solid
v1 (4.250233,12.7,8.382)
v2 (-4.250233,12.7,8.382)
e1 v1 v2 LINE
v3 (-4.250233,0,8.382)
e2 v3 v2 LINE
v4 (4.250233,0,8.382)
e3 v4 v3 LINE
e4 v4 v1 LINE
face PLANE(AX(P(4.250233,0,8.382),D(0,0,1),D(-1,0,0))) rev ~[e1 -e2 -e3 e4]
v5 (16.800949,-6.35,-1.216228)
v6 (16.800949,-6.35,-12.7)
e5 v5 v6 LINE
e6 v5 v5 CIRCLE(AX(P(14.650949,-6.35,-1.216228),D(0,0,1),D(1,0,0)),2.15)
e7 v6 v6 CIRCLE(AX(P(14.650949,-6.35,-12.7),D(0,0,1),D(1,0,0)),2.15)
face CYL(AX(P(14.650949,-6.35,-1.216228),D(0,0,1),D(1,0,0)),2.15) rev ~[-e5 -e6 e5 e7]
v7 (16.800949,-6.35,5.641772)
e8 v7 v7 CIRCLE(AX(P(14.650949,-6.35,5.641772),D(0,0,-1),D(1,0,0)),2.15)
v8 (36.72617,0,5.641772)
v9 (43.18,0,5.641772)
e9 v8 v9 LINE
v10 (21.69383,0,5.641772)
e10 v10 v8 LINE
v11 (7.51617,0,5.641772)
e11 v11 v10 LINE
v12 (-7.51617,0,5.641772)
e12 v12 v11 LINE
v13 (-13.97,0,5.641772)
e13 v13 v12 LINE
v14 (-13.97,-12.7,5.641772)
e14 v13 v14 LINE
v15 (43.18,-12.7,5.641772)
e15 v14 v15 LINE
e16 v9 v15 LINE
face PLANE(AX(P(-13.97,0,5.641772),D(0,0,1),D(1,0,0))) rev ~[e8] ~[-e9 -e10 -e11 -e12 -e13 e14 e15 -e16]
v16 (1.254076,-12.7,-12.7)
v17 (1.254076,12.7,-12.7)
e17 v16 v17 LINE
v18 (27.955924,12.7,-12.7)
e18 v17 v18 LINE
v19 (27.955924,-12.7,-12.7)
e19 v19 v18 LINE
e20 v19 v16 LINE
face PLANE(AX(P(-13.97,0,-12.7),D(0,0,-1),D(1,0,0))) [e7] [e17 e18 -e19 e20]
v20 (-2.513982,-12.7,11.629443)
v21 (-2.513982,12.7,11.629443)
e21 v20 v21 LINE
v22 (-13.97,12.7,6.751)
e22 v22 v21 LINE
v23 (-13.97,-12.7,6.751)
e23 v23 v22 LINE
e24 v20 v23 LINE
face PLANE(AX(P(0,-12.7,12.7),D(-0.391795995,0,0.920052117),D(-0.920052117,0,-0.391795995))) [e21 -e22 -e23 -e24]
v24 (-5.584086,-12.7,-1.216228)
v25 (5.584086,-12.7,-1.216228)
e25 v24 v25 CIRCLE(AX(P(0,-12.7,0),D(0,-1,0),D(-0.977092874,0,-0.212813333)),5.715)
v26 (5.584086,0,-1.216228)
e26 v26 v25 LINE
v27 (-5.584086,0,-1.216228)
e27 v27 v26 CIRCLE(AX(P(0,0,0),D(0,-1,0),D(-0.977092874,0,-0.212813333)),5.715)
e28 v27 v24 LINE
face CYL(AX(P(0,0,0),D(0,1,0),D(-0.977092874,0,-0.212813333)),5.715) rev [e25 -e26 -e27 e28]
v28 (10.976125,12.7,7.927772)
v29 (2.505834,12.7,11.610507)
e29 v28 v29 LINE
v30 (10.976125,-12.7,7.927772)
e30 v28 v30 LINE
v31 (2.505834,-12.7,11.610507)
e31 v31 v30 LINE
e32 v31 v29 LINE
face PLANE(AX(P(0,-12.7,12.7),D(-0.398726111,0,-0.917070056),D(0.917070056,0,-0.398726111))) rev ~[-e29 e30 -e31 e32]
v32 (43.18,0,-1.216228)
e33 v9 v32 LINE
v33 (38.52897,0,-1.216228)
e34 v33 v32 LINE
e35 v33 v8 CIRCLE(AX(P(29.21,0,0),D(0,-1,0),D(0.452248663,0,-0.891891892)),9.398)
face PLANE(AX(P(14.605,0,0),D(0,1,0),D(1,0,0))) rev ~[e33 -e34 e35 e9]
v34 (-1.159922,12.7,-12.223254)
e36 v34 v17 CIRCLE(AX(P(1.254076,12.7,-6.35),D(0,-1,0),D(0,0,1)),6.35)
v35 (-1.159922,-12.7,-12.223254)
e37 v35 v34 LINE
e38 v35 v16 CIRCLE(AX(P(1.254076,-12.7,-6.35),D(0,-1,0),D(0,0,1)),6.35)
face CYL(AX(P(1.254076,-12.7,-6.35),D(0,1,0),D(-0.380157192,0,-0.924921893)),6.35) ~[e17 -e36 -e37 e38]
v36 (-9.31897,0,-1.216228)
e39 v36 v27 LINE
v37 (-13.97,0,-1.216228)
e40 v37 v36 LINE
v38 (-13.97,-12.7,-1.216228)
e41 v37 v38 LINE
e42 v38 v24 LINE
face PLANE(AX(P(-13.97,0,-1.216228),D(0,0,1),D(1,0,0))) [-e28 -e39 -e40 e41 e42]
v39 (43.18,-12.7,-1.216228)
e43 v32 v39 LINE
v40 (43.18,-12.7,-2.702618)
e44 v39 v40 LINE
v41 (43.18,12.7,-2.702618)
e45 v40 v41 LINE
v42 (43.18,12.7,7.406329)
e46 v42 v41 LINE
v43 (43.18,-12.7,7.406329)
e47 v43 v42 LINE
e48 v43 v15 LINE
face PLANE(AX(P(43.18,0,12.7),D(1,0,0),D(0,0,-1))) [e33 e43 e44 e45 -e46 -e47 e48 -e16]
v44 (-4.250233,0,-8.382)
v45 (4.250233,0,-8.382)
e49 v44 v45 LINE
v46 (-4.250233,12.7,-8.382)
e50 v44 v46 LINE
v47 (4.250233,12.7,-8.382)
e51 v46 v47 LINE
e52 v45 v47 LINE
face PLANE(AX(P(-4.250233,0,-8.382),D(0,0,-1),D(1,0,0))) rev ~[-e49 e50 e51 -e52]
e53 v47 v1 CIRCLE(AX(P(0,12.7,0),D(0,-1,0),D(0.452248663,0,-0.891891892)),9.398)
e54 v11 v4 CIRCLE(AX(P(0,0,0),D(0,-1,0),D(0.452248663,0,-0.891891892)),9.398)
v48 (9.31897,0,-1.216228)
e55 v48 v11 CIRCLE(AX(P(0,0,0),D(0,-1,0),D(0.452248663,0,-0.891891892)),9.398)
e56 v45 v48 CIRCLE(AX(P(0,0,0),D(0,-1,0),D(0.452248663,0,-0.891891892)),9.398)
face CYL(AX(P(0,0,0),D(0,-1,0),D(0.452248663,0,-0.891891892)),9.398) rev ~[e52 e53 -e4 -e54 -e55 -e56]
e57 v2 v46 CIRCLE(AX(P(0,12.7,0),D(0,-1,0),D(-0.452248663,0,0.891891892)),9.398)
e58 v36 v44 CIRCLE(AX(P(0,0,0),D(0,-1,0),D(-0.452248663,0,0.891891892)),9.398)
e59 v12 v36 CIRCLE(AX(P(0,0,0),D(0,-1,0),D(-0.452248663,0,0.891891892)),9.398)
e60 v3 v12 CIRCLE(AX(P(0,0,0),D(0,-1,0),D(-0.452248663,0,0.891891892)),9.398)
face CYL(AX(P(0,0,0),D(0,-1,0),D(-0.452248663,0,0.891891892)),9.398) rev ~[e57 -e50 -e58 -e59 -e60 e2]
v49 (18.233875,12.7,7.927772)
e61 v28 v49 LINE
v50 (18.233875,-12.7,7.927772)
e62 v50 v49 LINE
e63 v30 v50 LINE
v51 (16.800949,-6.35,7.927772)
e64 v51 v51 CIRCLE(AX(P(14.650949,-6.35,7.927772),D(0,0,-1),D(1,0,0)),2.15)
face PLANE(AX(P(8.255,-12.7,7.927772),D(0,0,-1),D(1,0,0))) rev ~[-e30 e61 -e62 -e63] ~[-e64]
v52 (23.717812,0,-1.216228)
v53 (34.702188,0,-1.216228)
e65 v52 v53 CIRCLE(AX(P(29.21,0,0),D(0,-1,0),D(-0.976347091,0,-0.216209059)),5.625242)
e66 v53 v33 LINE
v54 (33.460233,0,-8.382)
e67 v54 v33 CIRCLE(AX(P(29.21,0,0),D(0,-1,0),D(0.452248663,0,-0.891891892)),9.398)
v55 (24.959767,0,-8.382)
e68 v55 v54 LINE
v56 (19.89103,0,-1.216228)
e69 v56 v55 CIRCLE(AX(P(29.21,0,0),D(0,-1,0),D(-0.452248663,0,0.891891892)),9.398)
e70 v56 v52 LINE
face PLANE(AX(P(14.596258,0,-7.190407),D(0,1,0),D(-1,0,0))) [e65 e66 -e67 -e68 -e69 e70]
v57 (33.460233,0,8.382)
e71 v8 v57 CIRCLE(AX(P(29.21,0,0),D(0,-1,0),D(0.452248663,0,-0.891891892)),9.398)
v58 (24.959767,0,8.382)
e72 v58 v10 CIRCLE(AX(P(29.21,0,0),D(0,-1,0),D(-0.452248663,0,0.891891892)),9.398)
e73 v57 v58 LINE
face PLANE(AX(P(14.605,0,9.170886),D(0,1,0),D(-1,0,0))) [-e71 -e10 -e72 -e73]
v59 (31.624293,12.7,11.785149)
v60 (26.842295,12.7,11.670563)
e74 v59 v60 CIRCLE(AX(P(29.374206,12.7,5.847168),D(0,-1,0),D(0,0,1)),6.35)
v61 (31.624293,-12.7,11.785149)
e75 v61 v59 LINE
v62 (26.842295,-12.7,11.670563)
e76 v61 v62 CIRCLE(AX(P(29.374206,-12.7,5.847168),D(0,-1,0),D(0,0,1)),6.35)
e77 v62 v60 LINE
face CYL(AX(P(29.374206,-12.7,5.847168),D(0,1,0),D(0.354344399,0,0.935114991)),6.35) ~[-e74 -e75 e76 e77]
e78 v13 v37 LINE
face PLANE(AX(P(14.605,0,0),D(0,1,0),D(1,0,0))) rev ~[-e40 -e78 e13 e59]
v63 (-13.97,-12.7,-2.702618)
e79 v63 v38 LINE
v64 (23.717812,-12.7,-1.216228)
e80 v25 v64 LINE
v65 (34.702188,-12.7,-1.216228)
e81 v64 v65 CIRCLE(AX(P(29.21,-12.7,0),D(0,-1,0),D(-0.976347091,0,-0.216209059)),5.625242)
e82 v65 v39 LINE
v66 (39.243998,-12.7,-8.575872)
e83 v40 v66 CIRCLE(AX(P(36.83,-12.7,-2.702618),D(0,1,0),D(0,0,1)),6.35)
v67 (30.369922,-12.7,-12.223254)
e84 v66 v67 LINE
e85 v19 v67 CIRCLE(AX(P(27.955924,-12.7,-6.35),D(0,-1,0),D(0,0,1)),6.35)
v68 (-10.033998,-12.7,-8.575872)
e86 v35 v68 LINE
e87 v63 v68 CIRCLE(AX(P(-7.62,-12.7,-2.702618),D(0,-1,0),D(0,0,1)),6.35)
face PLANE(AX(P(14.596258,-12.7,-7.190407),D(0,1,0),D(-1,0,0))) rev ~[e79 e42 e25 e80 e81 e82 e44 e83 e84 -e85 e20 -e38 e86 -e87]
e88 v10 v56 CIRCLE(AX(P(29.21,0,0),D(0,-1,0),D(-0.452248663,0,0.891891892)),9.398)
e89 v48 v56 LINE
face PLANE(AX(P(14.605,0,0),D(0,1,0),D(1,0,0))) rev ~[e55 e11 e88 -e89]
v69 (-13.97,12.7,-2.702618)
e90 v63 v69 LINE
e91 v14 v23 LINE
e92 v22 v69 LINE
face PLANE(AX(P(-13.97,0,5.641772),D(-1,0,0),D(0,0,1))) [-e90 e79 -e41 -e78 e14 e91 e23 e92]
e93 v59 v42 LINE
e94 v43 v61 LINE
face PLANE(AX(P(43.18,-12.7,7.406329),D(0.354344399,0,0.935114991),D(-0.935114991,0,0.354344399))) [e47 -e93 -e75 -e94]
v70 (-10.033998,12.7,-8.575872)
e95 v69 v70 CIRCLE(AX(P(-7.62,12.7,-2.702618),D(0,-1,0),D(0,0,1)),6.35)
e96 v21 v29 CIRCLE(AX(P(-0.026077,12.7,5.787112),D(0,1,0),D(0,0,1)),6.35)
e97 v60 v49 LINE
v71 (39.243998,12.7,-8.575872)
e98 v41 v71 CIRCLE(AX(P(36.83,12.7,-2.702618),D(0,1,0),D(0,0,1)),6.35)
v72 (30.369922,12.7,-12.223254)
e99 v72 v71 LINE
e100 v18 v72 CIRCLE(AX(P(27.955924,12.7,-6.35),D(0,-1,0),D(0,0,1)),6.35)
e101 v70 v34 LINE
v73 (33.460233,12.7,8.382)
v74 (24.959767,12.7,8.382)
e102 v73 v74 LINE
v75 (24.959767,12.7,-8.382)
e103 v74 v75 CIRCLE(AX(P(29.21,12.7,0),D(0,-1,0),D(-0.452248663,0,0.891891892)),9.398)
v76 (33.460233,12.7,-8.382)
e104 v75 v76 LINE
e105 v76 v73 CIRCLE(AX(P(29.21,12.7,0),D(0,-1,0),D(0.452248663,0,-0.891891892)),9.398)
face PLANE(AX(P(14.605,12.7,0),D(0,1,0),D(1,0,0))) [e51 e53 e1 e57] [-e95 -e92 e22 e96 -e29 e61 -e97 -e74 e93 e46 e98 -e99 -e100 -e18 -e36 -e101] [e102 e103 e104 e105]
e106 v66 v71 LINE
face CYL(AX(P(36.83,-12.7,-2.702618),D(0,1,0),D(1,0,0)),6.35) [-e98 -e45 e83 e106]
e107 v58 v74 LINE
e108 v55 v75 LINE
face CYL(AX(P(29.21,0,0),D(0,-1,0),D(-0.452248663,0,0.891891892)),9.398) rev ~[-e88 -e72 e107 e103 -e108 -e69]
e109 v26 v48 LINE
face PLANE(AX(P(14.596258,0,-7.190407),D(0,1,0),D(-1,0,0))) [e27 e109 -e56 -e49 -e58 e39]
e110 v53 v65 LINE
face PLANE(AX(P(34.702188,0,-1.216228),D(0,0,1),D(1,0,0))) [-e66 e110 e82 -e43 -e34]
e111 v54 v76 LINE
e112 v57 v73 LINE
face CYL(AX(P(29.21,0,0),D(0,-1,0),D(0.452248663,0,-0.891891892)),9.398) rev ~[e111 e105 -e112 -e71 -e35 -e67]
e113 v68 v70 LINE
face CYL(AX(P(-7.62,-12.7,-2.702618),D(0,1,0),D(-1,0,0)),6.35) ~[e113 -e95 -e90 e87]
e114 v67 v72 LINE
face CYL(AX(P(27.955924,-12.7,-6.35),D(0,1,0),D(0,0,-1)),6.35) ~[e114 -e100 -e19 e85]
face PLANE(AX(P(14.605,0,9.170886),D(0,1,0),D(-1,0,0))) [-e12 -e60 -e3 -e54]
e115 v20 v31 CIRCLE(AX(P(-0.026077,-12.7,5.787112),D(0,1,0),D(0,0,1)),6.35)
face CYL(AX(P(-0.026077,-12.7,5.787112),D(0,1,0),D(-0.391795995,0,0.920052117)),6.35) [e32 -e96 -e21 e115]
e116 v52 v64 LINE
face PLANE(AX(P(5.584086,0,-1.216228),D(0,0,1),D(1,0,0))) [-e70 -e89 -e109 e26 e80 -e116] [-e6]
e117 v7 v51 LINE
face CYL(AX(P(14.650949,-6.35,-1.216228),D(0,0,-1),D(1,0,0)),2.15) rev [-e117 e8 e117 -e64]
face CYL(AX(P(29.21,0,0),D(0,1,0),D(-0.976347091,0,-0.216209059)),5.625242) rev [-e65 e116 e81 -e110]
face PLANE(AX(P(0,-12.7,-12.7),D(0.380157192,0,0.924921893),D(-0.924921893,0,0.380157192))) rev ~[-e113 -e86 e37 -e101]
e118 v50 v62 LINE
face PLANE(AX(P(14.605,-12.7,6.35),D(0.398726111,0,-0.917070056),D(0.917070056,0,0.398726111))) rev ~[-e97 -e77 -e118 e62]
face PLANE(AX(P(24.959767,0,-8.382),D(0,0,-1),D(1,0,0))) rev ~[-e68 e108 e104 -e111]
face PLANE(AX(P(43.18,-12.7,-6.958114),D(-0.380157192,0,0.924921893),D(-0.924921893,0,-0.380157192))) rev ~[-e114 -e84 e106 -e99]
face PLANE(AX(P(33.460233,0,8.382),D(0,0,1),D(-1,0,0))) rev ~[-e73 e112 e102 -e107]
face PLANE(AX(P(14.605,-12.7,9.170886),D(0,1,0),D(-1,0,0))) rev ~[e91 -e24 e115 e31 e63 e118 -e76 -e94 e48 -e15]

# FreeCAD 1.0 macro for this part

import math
import FreeCAD as App
import Part
import Sketcher

V = App.Vector
Q = App.Units.Quantity


def edges_at(feature, points):
    """Names of the edges that pass closest to the given points."""
    edges = feature.Shape.Edges
    near = lambda p: min(range(len(edges)), key=lambda i: edges[i].distToShape(Part.Vertex(*p))[0])
    return sorted({f"Edge{near(p) + 1}" for p in points})

doc = App.newDocument("Part")
body = doc.addObject("PartDesign::Body", "Body")

# Sketch on XZ plane
sketch1 = body.newObject("Sketcher::SketchObject", "Sketch")
sketch1.AttachmentSupport = (doc.getObject("XZ_Plane"), [""])
sketch1.MapMode = "FlatFace"
sketch1.addGeometry([
    Part.LineSegment(V(-14, -13, 0), V(-14, 13, 0)),  # 0
    Part.LineSegment(V(-14, 13, 0), V(43, 13, 0)),  # 1
    Part.LineSegment(V(43, 13, 0), V(43, -13, 0)),  # 2
    Part.LineSegment(V(43, -13, 0), V(-14, -13, 0)),  # 3
    Part.ArcOfCircle(Part.Circle(V(0, 0, 0), V(0, 0, 1), 9), math.radians(117), math.radians(243)),  # 4
    Part.LineSegment(V(-4, -8, 0), V(4, -8, 0)),  # 5
    Part.ArcOfCircle(Part.Circle(V(0, 0, 0), V(0, 0, 1), 9), math.radians(-63), math.radians(63)),  # 6
    Part.LineSegment(V(4, 8, 0), V(-4, 8, 0)),  # 7
    Part.ArcOfCircle(Part.Circle(V(29, 0, 0), V(0, 0, 1), 9), math.radians(117), math.radians(243)),  # 8
    Part.LineSegment(V(25, -8, 0), V(33, -8, 0)),  # 9
    Part.ArcOfCircle(Part.Circle(V(29, 0, 0), V(0, 0, 1), 9), math.radians(-63), math.radians(63)),  # 10
    Part.LineSegment(V(33, 8, 0), V(25, 8, 0)),  # 11
], False)
sketch1.addConstraint([
    Sketcher.Constraint("Coincident", 0, 2, 1, 1),
    Sketcher.Constraint("Coincident", 1, 2, 2, 1),
    Sketcher.Constraint("Coincident", 2, 2, 3, 1),
    Sketcher.Constraint("Coincident", 3, 2, 0, 1),
    Sketcher.Constraint("Coincident", 4, 2, 5, 1),
    Sketcher.Constraint("Coincident", 5, 2, 6, 1),
    Sketcher.Constraint("Coincident", 6, 2, 7, 1),
    Sketcher.Constraint("Coincident", 7, 2, 4, 1),
    Sketcher.Constraint("Coincident", 8, 2, 9, 1),
    Sketcher.Constraint("Coincident", 9, 2, 10, 1),
    Sketcher.Constraint("Coincident", 10, 2, 11, 1),
    Sketcher.Constraint("Coincident", 11, 2, 8, 1),
    Sketcher.Constraint("Vertical", 0),
    Sketcher.Constraint("Horizontal", 1),
    Sketcher.Constraint("Vertical", 2),
    Sketcher.Constraint("Horizontal", 3),
    Sketcher.Constraint("Horizontal", 5),
    Sketcher.Constraint("Horizontal", 7),
    Sketcher.Constraint("Horizontal", 9),
    Sketcher.Constraint("Horizontal", 11),
    Sketcher.Constraint("Coincident", 4, 3, -1, 1),
    Sketcher.Constraint("Coincident", 6, 3, -1, 1),
    Sketcher.Constraint("Coincident", 10, 3, 8, 3),
    Sketcher.Constraint("Equal", 4, 6),
    Sketcher.Constraint("Equal", 6, 8),
    Sketcher.Constraint("Equal", 8, 10),
    Sketcher.Constraint("Symmetric", 9, 2, 10, 2, -1),
    Sketcher.Constraint("Horizontal", 5, 2, 8, 2),
    Sketcher.Constraint("Horizontal", 7, 2, 10, 2),
    Sketcher.Constraint("DistanceY", 0, 1, 0, 2, Q("1 in")),
    Sketcher.Constraint("Radius", 4, Q("0.37 in")),
    Sketcher.Constraint("DistanceX", 1, 1, 1, 2, Q("2.25 in")),
    Sketcher.Constraint("DistanceY", -1, 1, 0, 2, Q("0.5 in")),
    Sketcher.Constraint("DistanceX", -1, 1, 1, 2, Q("1.7 in")),
    Sketcher.Constraint("DistanceX", 0, 2, 8, 3, Q("1.7 in")),
    Sketcher.Constraint("DistanceY", 4, 2, -1, 1, Q("0.33 in")),
])
pad1 = body.newObject("PartDesign::Pad", "Pad")
pad1.Profile = sketch1
pad1.Length = Q("0.5 in")
pad1.Reversed = True

# Sketch on XZ plane
sketch2 = body.newObject("Sketcher::SketchObject", "Sketch001")
sketch2.AttachmentSupport = (doc.getObject("XZ_Plane"), [""])
sketch2.MapMode = "FlatFace"
sketch2.addGeometry([
    Part.LineSegment(V(43, 13, 0), V(-14, 13, 0)),  # 0
    Part.LineSegment(V(-14, 13, 0), V(-14, 6, 0)),  # 1
    Part.LineSegment(V(-14, 6, 0), V(43, 6, 0)),  # 2
    Part.LineSegment(V(43, 6, 0), V(43, 13, 0)),  # 3
    Part.LineSegment(V(43, -13, 0), V(43, -1, 0)),  # 4
    Part.LineSegment(V(43, -1, 0), V(35, -1, 0)),  # 5
    Part.ArcOfCircle(Part.Circle(V(29, 0, 0), V(0, 0, 1), 6), math.radians(-168), math.radians(-12)),  # 6
    Part.LineSegment(V(24, -1, 0), V(6, -1, 0)),  # 7
    Part.ArcOfCircle(Part.Circle(V(0, 0, 0), V(0, 0, 1), 6), math.radians(-168), math.radians(-12)),  # 8
    Part.LineSegment(V(-6, -1, 0), V(-14, -1, 0)),  # 9
    Part.LineSegment(V(-14, -1, 0), V(-14, -13, 0)),  # 10
    Part.LineSegment(V(-14, -13, 0), V(43, -13, 0)),  # 11
], False)
sketch2.addConstraint([
    Sketcher.Constraint("Coincident", 0, 2, 1, 1),
    Sketcher.Constraint("Coincident", 1, 2, 2, 1),
    Sketcher.Constraint("Coincident", 2, 2, 3, 1),
    Sketcher.Constraint("Coincident", 3, 2, 0, 1),
    Sketcher.Constraint("Coincident", 4, 2, 5, 1),
    Sketcher.Constraint("Coincident", 5, 2, 6, 2),
    Sketcher.Constraint("Coincident", 6, 1, 7, 1),
    Sketcher.Constraint("Coincident", 7, 2, 8, 2),
    Sketcher.Constraint("Coincident", 8, 1, 9, 1),
    Sketcher.Constraint("Coincident", 9, 2, 10, 1),
    Sketcher.Constraint("Coincident", 10, 2, 11, 1),
    Sketcher.Constraint("Coincident", 11, 2, 4, 1),
    Sketcher.Constraint("Horizontal", 0),
    Sketcher.Constraint("Vertical", 1),
    Sketcher.Constraint("Horizontal", 2),
    Sketcher.Constraint("Vertical", 3),
    Sketcher.Constraint("Vertical", 4),
    Sketcher.Constraint("Horizontal", 5),
    Sketcher.Constraint("Horizontal", 7),
    Sketcher.Constraint("Horizontal", 9),
    Sketcher.Constraint("Vertical", 10),
    Sketcher.Constraint("Horizontal", 11),
    Sketcher.Constraint("Coincident", 8, 3, -1, 1),
    Sketcher.Constraint("Symmetric", 0, 2, 10, 2, -1),
    Sketcher.Constraint("PointOnObject", 6, 3, -1),
    Sketcher.Constraint("Horizontal", 5, 2, 6, 1),
    Sketcher.Constraint("Horizontal", 7, 2, 8, 1),
    Sketcher.Constraint("Vertical", 3, 2, 4, 2),
    Sketcher.Constraint("Radius", 8, Q("0.225 in")),
    Sketcher.Constraint("DistanceX", 0, 2, 0, 1, Q("2.25 in")),
    Sketcher.Constraint("DistanceY", -1, 1, 0, 2, Q("0.5 in")),
    Sketcher.Constraint("DistanceX", -1, 1, 2, 2, Q("1.7 in")),
    Sketcher.Constraint("DistanceX", 0, 2, 6, 3, Q("1.7 in")),
    Sketcher.Constraint("DistanceY", 4, 2, 2, 2, Q("0.27 in")),
    Sketcher.Constraint("Radius", 6, Q("5.625242 mm")),
    Sketcher.Constraint("DistanceX", 5, 2, 5, 1, Q("8.477812 mm")),
])
pad2 = body.newObject("PartDesign::Pad", "Pad001")
pad2.Profile = sketch2
pad2.Length = Q("0.5 in")

# Sketch on XZ plane
sketch3 = body.newObject("Sketcher::SketchObject", "Sketch002")
sketch3.AttachmentSupport = (doc.getObject("XZ_Plane"), [""])
sketch3.MapMode = "FlatFace"
sketch3.AttachmentOffset = App.Placement(V(0, 0, 0.5 * 25.4), App.Rotation())
sketch3.addGeometry([
    Part.LineSegment(V(-14, -7, 0), V(-14, -13, 0)),  # 0
    Part.LineSegment(V(-14, -13, 0), V(0, -13, 0)),  # 1
    Part.LineSegment(V(0, -13, 0), V(-14, -7, 0)),  # 2
    Part.LineSegment(V(29, -13, 0), V(43, -13, 0)),  # 3
    Part.LineSegment(V(43, -13, 0), V(43, -7, 0)),  # 4
    Part.LineSegment(V(43, -7, 0), V(29, -13, 0)),  # 5
    Part.LineSegment(V(43, 7, 0), V(43, 13, 0)),  # 6
    Part.LineSegment(V(43, 13, 0), V(29, 13, 0)),  # 7
    Part.LineSegment(V(29, 13, 0), V(43, 7, 0)),  # 8
    Part.LineSegment(V(-14, 7, 0), V(0, 13, 0)),  # 9
    Part.LineSegment(V(0, 13, 0), V(-14, 13, 0)),  # 10
    Part.LineSegment(V(-14, 13, 0), V(-14, 7, 0)),  # 11
], False)
sketch3.addConstraint([
    Sketcher.Constraint("Coincident", 0, 2, 1, 1),
    Sketcher.Constraint("Coincident", 1, 2, 2, 1),
    Sketcher.Constraint("Coincident", 2, 2, 0, 1),
    Sketcher.Constraint("Coincident", 3, 2, 4, 1),
    Sketcher.Constraint("Coincident", 4, 2, 5, 1),
    Sketcher.Constraint("Coincident", 5, 2, 3, 1),
    Sketcher.Constraint("Coincident", 6, 2, 7, 1),
    Sketcher.Constraint("Coincident", 7, 2, 8, 1),
    Sketcher.Constraint("Coincident", 8, 2, 6, 1),
    Sketcher.Constraint("Coincident", 9, 2, 10, 1),
    Sketcher.Constraint("Coincident", 10, 2, 11, 1),
    Sketcher.Constraint("Coincident", 11, 2, 9, 1),
    Sketcher.Constraint("Vertical", 0),
    Sketcher.Constraint("Horizontal", 1),
    Sketcher.Constraint("Horizontal", 3),
    Sketcher.Constraint("Vertical", 4),
    Sketcher.Constraint("Vertical", 6),
    Sketcher.Constraint("Horizontal", 7),
    Sketcher.Constraint("Horizontal", 10),
    Sketcher.Constraint("Vertical", 11),
    Sketcher.Constraint("Symmetric", 1, 2, 9, 2, -1, 1),
    Sketcher.Constraint("Symmetric", 3, 2, 6, 2, -1),
    Sketcher.Constraint("PointOnObject", 1, 2, -2),
    Sketcher.Constraint("Horizontal", 1, 2, 3, 2),
    Sketcher.Constraint("Horizontal", 2, 2, 4, 2),
    Sketcher.Constraint("Vertical", 5, 2, 7, 2),
    Sketcher.Constraint("Vertical", 2, 2, 10, 2),
    Sketcher.Constraint("Equal", 1, 3),
    Sketcher.Constraint("DistanceY", 3, 2, 6, 2, Q("1 in")),
    Sketcher.Constraint("DistanceX", 1, 1, 1, 2, Q("0.55 in")),
    Sketcher.Constraint("DistanceX", -1, 1, 3, 2, Q("1.7 in")),
    Sketcher.Constraint("DistanceY", 11, 2, 11, 1, Q("5.949 mm")),
    Sketcher.Constraint("DistanceY", 6, 1, 6, 2, Q("5.293671 mm")),
    Sketcher.Constraint("Distance", 2, Q("15.103978 mm")),
])
pocket1 = body.newObject("PartDesign::Pocket", "Pocket")
pocket1.Profile = sketch3
pocket1.Type = "ThroughAll"

# Sketch on XZ plane
sketch4 = body.newObject("Sketcher::SketchObject", "Sketch003")
sketch4.AttachmentSupport = (doc.getObject("XZ_Plane"), [""])
sketch4.MapMode = "FlatFace"
sketch4.AttachmentOffset = App.Placement(V(0, 0, 0.5 * 25.4), App.Rotation())
sketch4.addGeometry([
    Part.LineSegment(V(0, 13, 0), V(15, 6, 0)),
    Part.LineSegment(V(15, 6, 0), V(29, 13, 0)),
    Part.LineSegment(V(29, 13, 0), V(0, 13, 0)),
], False)
sketch4.addConstraint([
    Sketcher.Constraint("Coincident", 0, 2, 1, 1),
    Sketcher.Constraint("Coincident", 1, 2, 2, 1),
    Sketcher.Constraint("Coincident", 2, 2, 0, 1),
    Sketcher.Constraint("Horizontal", 2),
    Sketcher.Constraint("PointOnObject", 2, 2, -2),
    Sketcher.Constraint("Equal", 0, 1),
    Sketcher.Constraint("DistanceX", 2, 2, 2, 1, Q("1.15 in")),
    Sketcher.Constraint("DistanceY", -1, 1, 1, 2, Q("0.5 in")),
    Sketcher.Constraint("DistanceY", -1, 1, 0, 2, Q("0.25 in")),
])
pocket2 = body.newObject("PartDesign::Pocket", "Pocket001")
pocket2.Profile = sketch4
pocket2.Type = "ThroughAll"
doc.recompute()

fillet = body.newObject("PartDesign::Fillet", "Fillet")
fillet.Base = (pocket2, edges_at(pocket2, [
    (0, 0, 12.7),
    (29.21, 0, 12.7),
    (29.21, 0, -12.7),
    (43.18, 0, -6.958),
    (-13.97, 0, -6.958),
    (0, 0, -12.7),
]))
fillet.Radius = Q("0.25 in")

# Sketch on XZ plane
sketch5 = body.newObject("Sketcher::SketchObject", "Sketch004")
sketch5.AttachmentSupport = (doc.getObject("XZ_Plane"), [""])
sketch5.MapMode = "FlatFace"
sketch5.AttachmentOffset = App.Placement(V(0, 0, 0.5 * 25.4), App.Rotation())
sketch5.addGeometry([
    Part.LineSegment(V(8.3, 7.9, 0), V(8.3, 5.6, 0)),
    Part.LineSegment(V(8.3, 5.6, 0), V(21, 5.6, 0)),
    Part.LineSegment(V(21, 5.6, 0), V(21, 7.9, 0)),
    Part.LineSegment(V(21, 7.9, 0), V(8.3, 7.9, 0)),
], False)
sketch5.addConstraint([
    Sketcher.Constraint("Coincident", 0, 2, 1, 1),
    Sketcher.Constraint("Coincident", 1, 2, 2, 1),
    Sketcher.Constraint("Coincident", 2, 2, 3, 1),
    Sketcher.Constraint("Coincident", 3, 2, 0, 1),
    Sketcher.Constraint("Vertical", 0),
    Sketcher.Constraint("Horizontal", 1),
    Sketcher.Constraint("Vertical", 2),
    Sketcher.Constraint("Horizontal", 3),
    Sketcher.Constraint("DistanceX", 1, 1, 1, 2, Q("0.5 in")),
    Sketcher.Constraint("DistanceY", 0, 2, 0, 1, Q("0.09 in")),
    Sketcher.Constraint("DistanceX", -1, 1, 0, 2, Q("0.325 in")),
    Sketcher.Constraint("DistanceY", -1, 1, 0, 2, Q("5.641772 mm")),
])
pad3 = body.newObject("PartDesign::Pad", "Pad002")
pad3.Profile = sketch5
pad3.Length = Q("1 in")
pad3.Reversed = True

# Sketch on XY plane
sketch6 = body.newObject("Sketcher::SketchObject", "Sketch005")
sketch6.AttachmentSupport = (doc.getObject("XY_Plane"), [""])
sketch6.MapMode = "FlatFace"
sketch6.AttachmentOffset = App.Placement(V(0, 0, -1.216228), App.Rotation())
sketch6.addGeometry(Part.Circle(V(14.7, -6.3, 0), V(0, 0, 1), 2.1), False)
sketch6.addConstraint([
    Sketcher.Constraint("Diameter", 0, Q("4.3 mm")),
    Sketcher.Constraint("DistanceY", 0, 3, -1, 1, Q("0.25 in")),
    Sketcher.Constraint("DistanceX", -1, 1, 0, 3, Q("14.650949 mm")),
])
pocket3 = body.newObject("PartDesign::Pocket", "Pocket002")
pocket3.Profile = sketch6
pocket3.Type = "ThroughAll"
pocket3.Midplane = True

doc.recompute()
